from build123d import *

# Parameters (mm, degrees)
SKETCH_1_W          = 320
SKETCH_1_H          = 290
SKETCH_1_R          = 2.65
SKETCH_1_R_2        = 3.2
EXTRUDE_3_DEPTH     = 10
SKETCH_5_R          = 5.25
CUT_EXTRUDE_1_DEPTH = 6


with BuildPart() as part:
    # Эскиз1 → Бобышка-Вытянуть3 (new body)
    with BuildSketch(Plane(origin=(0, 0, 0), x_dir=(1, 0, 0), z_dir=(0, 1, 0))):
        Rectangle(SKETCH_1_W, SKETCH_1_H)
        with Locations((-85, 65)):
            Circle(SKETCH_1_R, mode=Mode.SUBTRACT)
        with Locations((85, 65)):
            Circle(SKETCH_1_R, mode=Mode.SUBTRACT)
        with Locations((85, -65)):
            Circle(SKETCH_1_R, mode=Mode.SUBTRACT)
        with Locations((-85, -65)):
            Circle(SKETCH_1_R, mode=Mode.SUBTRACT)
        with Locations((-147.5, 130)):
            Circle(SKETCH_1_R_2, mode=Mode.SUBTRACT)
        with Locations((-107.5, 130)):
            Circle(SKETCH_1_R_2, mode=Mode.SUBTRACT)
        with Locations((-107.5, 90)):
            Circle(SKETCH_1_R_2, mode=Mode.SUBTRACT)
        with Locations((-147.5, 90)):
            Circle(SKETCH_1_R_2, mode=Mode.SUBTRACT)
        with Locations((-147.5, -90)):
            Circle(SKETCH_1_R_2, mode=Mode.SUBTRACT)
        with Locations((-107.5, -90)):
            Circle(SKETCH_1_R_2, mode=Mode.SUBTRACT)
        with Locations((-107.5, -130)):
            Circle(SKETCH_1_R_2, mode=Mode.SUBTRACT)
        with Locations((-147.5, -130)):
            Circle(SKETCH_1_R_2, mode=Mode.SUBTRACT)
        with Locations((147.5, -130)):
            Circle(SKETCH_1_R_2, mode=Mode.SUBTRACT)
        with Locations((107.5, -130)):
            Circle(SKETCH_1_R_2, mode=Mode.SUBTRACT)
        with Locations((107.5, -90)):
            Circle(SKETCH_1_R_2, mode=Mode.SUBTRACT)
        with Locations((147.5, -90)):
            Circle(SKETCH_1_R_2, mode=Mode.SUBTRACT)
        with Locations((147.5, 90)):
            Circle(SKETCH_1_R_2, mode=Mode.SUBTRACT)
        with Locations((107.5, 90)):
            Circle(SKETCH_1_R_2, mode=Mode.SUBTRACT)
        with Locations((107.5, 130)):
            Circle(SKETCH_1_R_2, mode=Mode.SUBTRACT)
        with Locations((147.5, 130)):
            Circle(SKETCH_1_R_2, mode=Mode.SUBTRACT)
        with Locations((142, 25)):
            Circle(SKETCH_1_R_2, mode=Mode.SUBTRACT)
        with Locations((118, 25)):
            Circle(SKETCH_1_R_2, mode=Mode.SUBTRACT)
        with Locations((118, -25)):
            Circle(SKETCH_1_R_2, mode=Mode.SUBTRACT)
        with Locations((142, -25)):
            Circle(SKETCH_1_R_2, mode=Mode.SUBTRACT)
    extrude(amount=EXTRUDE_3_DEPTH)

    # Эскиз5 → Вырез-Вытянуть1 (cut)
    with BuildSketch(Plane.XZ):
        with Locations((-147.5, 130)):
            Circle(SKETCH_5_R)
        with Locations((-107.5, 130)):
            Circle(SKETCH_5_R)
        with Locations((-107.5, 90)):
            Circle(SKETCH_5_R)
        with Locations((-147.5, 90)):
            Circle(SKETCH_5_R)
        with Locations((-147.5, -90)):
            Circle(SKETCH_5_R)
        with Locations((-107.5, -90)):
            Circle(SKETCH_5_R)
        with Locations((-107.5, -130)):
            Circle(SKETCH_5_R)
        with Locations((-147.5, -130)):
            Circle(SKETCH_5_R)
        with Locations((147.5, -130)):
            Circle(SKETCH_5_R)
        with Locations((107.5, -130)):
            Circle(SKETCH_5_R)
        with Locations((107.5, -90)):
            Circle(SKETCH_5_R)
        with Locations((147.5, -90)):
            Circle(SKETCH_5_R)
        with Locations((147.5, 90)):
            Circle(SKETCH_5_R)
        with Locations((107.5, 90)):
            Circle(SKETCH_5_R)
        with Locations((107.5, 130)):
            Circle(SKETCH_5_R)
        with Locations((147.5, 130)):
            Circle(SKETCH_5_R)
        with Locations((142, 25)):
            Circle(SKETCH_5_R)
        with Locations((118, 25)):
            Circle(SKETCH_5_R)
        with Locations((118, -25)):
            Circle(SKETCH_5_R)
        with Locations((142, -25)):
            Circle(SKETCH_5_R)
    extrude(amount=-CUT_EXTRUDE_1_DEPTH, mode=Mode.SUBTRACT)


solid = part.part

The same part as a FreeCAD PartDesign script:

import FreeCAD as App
import Part
import Sketcher
from FreeCAD import Vector

doc = App.newDocument("Part")
params = doc.addObject("Spreadsheet::Sheet", "Params")
for row, (alias, value) in enumerate([
    ("sketch1_diameter", "6.4 mm"),
    ("sketch1_diameter2", "5.3 mm"),
    ("sketch1_width", "320 mm"),
    ("sketch1_height", "290 mm"),
    ("pad1_length", "10 mm"),
    ("sketch2_diameter", "10.5 mm"),
    ("pocket1_length", "6 mm"),
], start=1):
    params.set(f"A{row}", alias)
    params.set(f"B{row}", "=" + value)
    params.setAlias(f"B{row}", alias)

body = doc.addObject("PartDesign::Body", "Body")

# Sketch on XZ plane
sketch1 = body.newObject("Sketcher::SketchObject", "Sketch")
sketch1.AttachmentSupport = (doc.getObject("XZ_Plane"), [""])
sketch1.MapMode = "FlatFace"
sketch1.addGeometry([
    Part.LineSegment(Vector(-160, -145, 0), Vector(-160, 145, 0)),  # 0
    Part.LineSegment(Vector(-160, 145, 0), Vector(160, 145, 0)),  # 1
    Part.LineSegment(Vector(160, 145, 0), Vector(160, -145, 0)),  # 2
    Part.LineSegment(Vector(160, -145, 0), Vector(-160, -145, 0)),  # 3
    Part.Circle(Vector(-147.5, 130, 0), Vector(0, 0, 1), 3.2),  # 4
    Part.Circle(Vector(-107.5, 130, 0), Vector(0, 0, 1), 3.2),  # 5
    Part.Circle(Vector(-147.5, 90, 0), Vector(0, 0, 1), 3.2),  # 6
    Part.Circle(Vector(-107.5, 90, 0), Vector(0, 0, 1), 3.2),  # 7
    Part.Circle(Vector(-85, 65, 0), Vector(0, 0, 1), 2.65),  # 8
    Part.Circle(Vector(107.5, 130, 0), Vector(0, 0, 1), 3.2),  # 9
    Part.Circle(Vector(147.5, 130, 0), Vector(0, 0, 1), 3.2),  # 10
    Part.Circle(Vector(107.5, 90, 0), Vector(0, 0, 1), 3.2),  # 11
    Part.Circle(Vector(147.5, 90, 0), Vector(0, 0, 1), 3.2),  # 12
    Part.Circle(Vector(85, 65, 0), Vector(0, 0, 1), 2.65),  # 13
    Part.Circle(Vector(118, 25, 0), Vector(0, 0, 1), 3.2),  # 14
    Part.Circle(Vector(142, 25, 0), Vector(0, 0, 1), 3.2),  # 15
    Part.Circle(Vector(-85, -65, 0), Vector(0, 0, 1), 2.65),  # 16
    Part.Circle(Vector(-147.5, -90, 0), Vector(0, 0, 1), 3.2),  # 17
    Part.Circle(Vector(-107.5, -90, 0), Vector(0, 0, 1), 3.2),  # 18
    Part.Circle(Vector(-147.5, -130, 0), Vector(0, 0, 1), 3.2),  # 19
    Part.Circle(Vector(-107.5, -130, 0), Vector(0, 0, 1), 3.2),  # 20
    Part.Circle(Vector(118, -25, 0), Vector(0, 0, 1), 3.2),  # 21
    Part.Circle(Vector(142, -25, 0), Vector(0, 0, 1), 3.2),  # 22
    Part.Circle(Vector(85, -65, 0), Vector(0, 0, 1), 2.65),  # 23
    Part.Circle(Vector(107.5, -90, 0), Vector(0, 0, 1), 3.2),  # 24
    Part.Circle(Vector(147.5, -90, 0), Vector(0, 0, 1), 3.2),  # 25
    Part.Circle(Vector(107.5, -130, 0), Vector(0, 0, 1), 3.2),  # 26
    Part.Circle(Vector(147.5, -130, 0), Vector(0, 0, 1), 3.2),  # 27
], False)
sketch1.addConstraint([
    Sketcher.Constraint("Coincident", 0, 2, 1, 1),
    Sketcher.Constraint("Coincident", 1, 2, 2, 1),
    Sketcher.Constraint("Coincident", 2, 2, 3, 1),
    Sketcher.Constraint("Coincident", 3, 2, 0, 1),
    Sketcher.Constraint("Vertical", 0),
    Sketcher.Constraint("Horizontal", 1),
    Sketcher.Constraint("Vertical", 2),
    Sketcher.Constraint("Horizontal", 3),
    Sketcher.Constraint("Equal", 4, 5),
    Sketcher.Constraint("Equal", 5, 6),
    Sketcher.Constraint("Equal", 6, 7),
    Sketcher.Constraint("Equal", 7, 9),
    Sketcher.Constraint("Equal", 9, 10),
    Sketcher.Constraint("Equal", 10, 11),
    Sketcher.Constraint("Equal", 11, 12),
    Sketcher.Constraint("Equal", 8, 13),
    Sketcher.Constraint("Equal", 12, 14),
    Sketcher.Constraint("Equal", 14, 15),
    Sketcher.Constraint("Equal", 13, 16),
    Sketcher.Constraint("Equal", 15, 17),
    Sketcher.Constraint("Equal", 17, 18),
    Sketcher.Constraint("Equal", 18, 19),
    Sketcher.Constraint("Equal", 19, 20),
    Sketcher.Constraint("Equal", 20, 21),
    Sketcher.Constraint("Equal", 21, 22),
    Sketcher.Constraint("Equal", 16, 23),
    Sketcher.Constraint("Equal", 22, 24),
    Sketcher.Constraint("Equal", 24, 25),
    Sketcher.Constraint("Equal", 25, 26),
    Sketcher.Constraint("Equal", 26, 27),
    Sketcher.Constraint("Symmetric", 13, 3, 16, 3, -1, 1),
    Sketcher.Constraint("Symmetric", 12, 3, 17, 3, -1, 1),
    Sketcher.Constraint("Symmetric", 11, 3, 18, 3, -1, 1),
    Sketcher.Constraint("Symmetric", 10, 3, 19, 3, -1, 1),
    Sketcher.Constraint("Symmetric", 9, 3, 20, 3, -1, 1),
    Sketcher.Constraint("Symmetric", 8, 3, 23, 3, -1, 1),
    Sketcher.Constraint("Symmetric", 7, 3, 24, 3, -1, 1),
    Sketcher.Constraint("Symmetric", 6, 3, 25, 3, -1, 1),
    Sketcher.Constraint("Symmetric", 5, 3, 26, 3, -1, 1),
    Sketcher.Constraint("Symmetric", 4, 3, 27, 3, -1, 1),
    Sketcher.Constraint("Symmetric", 0, 2, 2, 2, -1, 1),
    Sketcher.Constraint("Symmetric", 5, 3, 9, 3, -2),
    Sketcher.Constraint("Symmetric", 4, 3, 10, 3, -2),
    Sketcher.Constraint("Symmetric", 7, 3, 11, 3, -2),
    Sketcher.Constraint("Symmetric", 6, 3, 12, 3, -2),
    Sketcher.Constraint("Symmetric", 8, 3, 13, 3, -2),
    Sketcher.Constraint("Symmetric", 14, 3, 21, 3, -1),
    Sketcher.Constraint("Symmetric", 15, 3, 22, 3, -1),
    Sketcher.Constraint("Horizontal", 4, 3, 5, 3),
    Sketcher.Constraint("Horizontal", 6, 3, 7, 3),
    Sketcher.Constraint("Horizontal", 14, 3, 15, 3),
    Sketcher.Constraint("Vertical", 4, 3, 6, 3),
    Sketcher.Constraint("Vertical", 5, 3, 7, 3),
    Sketcher.Constraint("Diameter", 4, 6.4),
    Sketcher.Constraint("Diameter", 8, 5.3),
    Sketcher.Constraint("DistanceX", 1, 1, 1, 2, 320.0),
    Sketcher.Constraint("DistanceY", 0, 1, 0, 2, 290.0),
    Sketcher.Constraint("DistanceY", -1, 1, 4, 3, 130.0),
    Sketcher.Constraint("DistanceY", -1, 1, 6, 3, 90.0),
    Sketcher.Constraint("DistanceX", 8, 3, -1, 1, 85.0),
    Sketcher.Constraint("DistanceY", -1, 1, 8, 3, 65.0),
    Sketcher.Constraint("DistanceX", -1, 1, 14, 3, 118.0),
    Sketcher.Constraint("DistanceY", -1, 1, 14, 3, 25.0),
    Sketcher.Constraint("DistanceX", -1, 1, 15, 3, 142.0),
    Sketcher.Constraint("DistanceX", 4, 3, 5, 3, 40.0),
    Sketcher.Constraint("DistanceX", 5, 3, 9, 3, 215.0),
])
sketch1.setExpression("Constraints[53]", "Params.sketch1_diameter")
sketch1.setExpression("Constraints[54]", "Params.sketch1_diameter2")
sketch1.setExpression("Constraints[55]", "Params.sketch1_width")
sketch1.setExpression("Constraints[56]", "Params.sketch1_height")
pad1 = body.newObject("PartDesign::Pad", "Pad")
pad1.Profile = sketch1
pad1.setExpression("Length", "Params.pad1_length")
pad1.Reversed = True

# Sketch on XZ plane
sketch2 = body.newObject("Sketcher::SketchObject", "Sketch001")
sketch2.AttachmentSupport = (doc.getObject("XZ_Plane"), [""])
sketch2.MapMode = "FlatFace"
sketch2.addGeometry([
    Part.Circle(Vector(-147.5, 130, 0), Vector(0, 0, 1), 5.25),  # 0
    Part.Circle(Vector(-107.5, 130, 0), Vector(0, 0, 1), 5.25),  # 1
    Part.Circle(Vector(-107.5, 90, 0), Vector(0, 0, 1), 5.25),  # 2
    Part.Circle(Vector(-147.5, 90, 0), Vector(0, 0, 1), 5.25),  # 3
    Part.Circle(Vector(-147.5, -90, 0), Vector(0, 0, 1), 5.25),  # 4
    Part.Circle(Vector(-107.5, -90, 0), Vector(0, 0, 1), 5.25),  # 5
    Part.Circle(Vector(-107.5, -130, 0), Vector(0, 0, 1), 5.25),  # 6
    Part.Circle(Vector(-147.5, -130, 0), Vector(0, 0, 1), 5.25),  # 7
    Part.Circle(Vector(147.5, -130, 0), Vector(0, 0, 1), 5.25),  # 8
    Part.Circle(Vector(107.5, -130, 0), Vector(0, 0, 1), 5.25),  # 9
    Part.Circle(Vector(107.5, -90, 0), Vector(0, 0, 1), 5.25),  # 10
    Part.Circle(Vector(147.5, -90, 0), Vector(0, 0, 1), 5.25),  # 11
    Part.Circle(Vector(147.5, 90, 0), Vector(0, 0, 1), 5.25),  # 12
    Part.Circle(Vector(107.5, 90, 0), Vector(0, 0, 1), 5.25),  # 13
    Part.Circle(Vector(107.5, 130, 0), Vector(0, 0, 1), 5.25),  # 14
    Part.Circle(Vector(147.5, 130, 0), Vector(0, 0, 1), 5.25),  # 15
    Part.Circle(Vector(142, 25, 0), Vector(0, 0, 1), 5.25),  # 16
    Part.Circle(Vector(118, 25, 0), Vector(0, 0, 1), 5.25),  # 17
    Part.Circle(Vector(118, -25, 0), Vector(0, 0, 1), 5.25),  # 18
    Part.Circle(Vector(142, -25, 0), Vector(0, 0, 1), 5.25),  # 19
], False)
sketch2.addConstraint([
    Sketcher.Constraint("Equal", 0, 1),
    Sketcher.Constraint("Equal", 1, 2),
    Sketcher.Constraint("Equal", 2, 3),
    Sketcher.Constraint("Equal", 3, 4),
    Sketcher.Constraint("Equal", 4, 5),
    Sketcher.Constraint("Equal", 5, 6),
    Sketcher.Constraint("Equal", 6, 7),
    Sketcher.Constraint("Equal", 7, 8),
    Sketcher.Constraint("Equal", 8, 9),
    Sketcher.Constraint("Equal", 9, 10),
    Sketcher.Constraint("Equal", 10, 11),
    Sketcher.Constraint("Equal", 11, 12),
    Sketcher.Constraint("Equal", 12, 13),
    Sketcher.Constraint("Equal", 13, 14),
    Sketcher.Constraint("Equal", 14, 15),
    Sketcher.Constraint("Equal", 15, 16),
    Sketcher.Constraint("Equal", 16, 17),
    Sketcher.Constraint("Equal", 17, 18),
    Sketcher.Constraint("Equal", 18, 19),
    Sketcher.Constraint("Symmetric", 0, 3, 8, 3, -1, 1),
    Sketcher.Constraint("Symmetric", 1, 3, 9, 3, -1, 1),
    Sketcher.Constraint("Symmetric", 2, 3, 10, 3, -1, 1),
    Sketcher.Constraint("Symmetric", 3, 3, 11, 3, -1, 1),
    Sketcher.Constraint("Symmetric", 4, 3, 12, 3, -1, 1),
    Sketcher.Constraint("Symmetric", 5, 3, 13, 3, -1, 1),
    Sketcher.Constraint("Symmetric", 6, 3, 14, 3, -1, 1),
    Sketcher.Constraint("Symmetric", 7, 3, 15, 3, -1, 1),
    Sketcher.Constraint("Symmetric", 7, 3, 8, 3, -2),
    Sketcher.Constraint("Symmetric", 6, 3, 9, 3, -2),
    Sketcher.Constraint("Symmetric", 5, 3, 10, 3, -2),
    Sketcher.Constraint("Symmetric", 4, 3, 11, 3, -2),
    Sketcher.Constraint("Symmetric", 17, 3, 18, 3, -1),
    Sketcher.Constraint("Symmetric", 16, 3, 19, 3, -1),
    Sketcher.Constraint("Horizontal", 0, 3, 1, 3),
    Sketcher.Constraint("Horizontal", 2, 3, 3, 3),
    Sketcher.Constraint("Horizontal", 16, 3, 17, 3),
    Sketcher.Constraint("Vertical", 1, 3, 2, 3),
    Sketcher.Constraint("Vertical", 0, 3, 3, 3),
    Sketcher.Constraint("Diameter", 0, 10.5),
    Sketcher.Constraint("DistanceY", -1, 1, 0, 3, 130.0),
    Sketcher.Constraint("DistanceY", -1, 1, 2, 3, 90.0),
    Sketcher.Constraint("DistanceX", -1, 1, 16, 3, 142.0),
    Sketcher.Constraint("DistanceY", -1, 1, 16, 3, 25.0),
    Sketcher.Constraint("DistanceX", -1, 1, 17, 3, 118.0),
    Sketcher.Constraint("DistanceX", 0, 3, 1, 3, 40.0),
    Sketcher.Constraint("DistanceX", 6, 3, 8, 3, 255.0),
])
sketch2.setExpression("Constraints[38]", "Params.sketch2_diameter")
pocket1 = body.newObject("PartDesign::Pocket", "Pocket")
pocket1.Profile = sketch2
pocket1.setExpression("Length", "Params.pocket1_length")

doc.recompute()
